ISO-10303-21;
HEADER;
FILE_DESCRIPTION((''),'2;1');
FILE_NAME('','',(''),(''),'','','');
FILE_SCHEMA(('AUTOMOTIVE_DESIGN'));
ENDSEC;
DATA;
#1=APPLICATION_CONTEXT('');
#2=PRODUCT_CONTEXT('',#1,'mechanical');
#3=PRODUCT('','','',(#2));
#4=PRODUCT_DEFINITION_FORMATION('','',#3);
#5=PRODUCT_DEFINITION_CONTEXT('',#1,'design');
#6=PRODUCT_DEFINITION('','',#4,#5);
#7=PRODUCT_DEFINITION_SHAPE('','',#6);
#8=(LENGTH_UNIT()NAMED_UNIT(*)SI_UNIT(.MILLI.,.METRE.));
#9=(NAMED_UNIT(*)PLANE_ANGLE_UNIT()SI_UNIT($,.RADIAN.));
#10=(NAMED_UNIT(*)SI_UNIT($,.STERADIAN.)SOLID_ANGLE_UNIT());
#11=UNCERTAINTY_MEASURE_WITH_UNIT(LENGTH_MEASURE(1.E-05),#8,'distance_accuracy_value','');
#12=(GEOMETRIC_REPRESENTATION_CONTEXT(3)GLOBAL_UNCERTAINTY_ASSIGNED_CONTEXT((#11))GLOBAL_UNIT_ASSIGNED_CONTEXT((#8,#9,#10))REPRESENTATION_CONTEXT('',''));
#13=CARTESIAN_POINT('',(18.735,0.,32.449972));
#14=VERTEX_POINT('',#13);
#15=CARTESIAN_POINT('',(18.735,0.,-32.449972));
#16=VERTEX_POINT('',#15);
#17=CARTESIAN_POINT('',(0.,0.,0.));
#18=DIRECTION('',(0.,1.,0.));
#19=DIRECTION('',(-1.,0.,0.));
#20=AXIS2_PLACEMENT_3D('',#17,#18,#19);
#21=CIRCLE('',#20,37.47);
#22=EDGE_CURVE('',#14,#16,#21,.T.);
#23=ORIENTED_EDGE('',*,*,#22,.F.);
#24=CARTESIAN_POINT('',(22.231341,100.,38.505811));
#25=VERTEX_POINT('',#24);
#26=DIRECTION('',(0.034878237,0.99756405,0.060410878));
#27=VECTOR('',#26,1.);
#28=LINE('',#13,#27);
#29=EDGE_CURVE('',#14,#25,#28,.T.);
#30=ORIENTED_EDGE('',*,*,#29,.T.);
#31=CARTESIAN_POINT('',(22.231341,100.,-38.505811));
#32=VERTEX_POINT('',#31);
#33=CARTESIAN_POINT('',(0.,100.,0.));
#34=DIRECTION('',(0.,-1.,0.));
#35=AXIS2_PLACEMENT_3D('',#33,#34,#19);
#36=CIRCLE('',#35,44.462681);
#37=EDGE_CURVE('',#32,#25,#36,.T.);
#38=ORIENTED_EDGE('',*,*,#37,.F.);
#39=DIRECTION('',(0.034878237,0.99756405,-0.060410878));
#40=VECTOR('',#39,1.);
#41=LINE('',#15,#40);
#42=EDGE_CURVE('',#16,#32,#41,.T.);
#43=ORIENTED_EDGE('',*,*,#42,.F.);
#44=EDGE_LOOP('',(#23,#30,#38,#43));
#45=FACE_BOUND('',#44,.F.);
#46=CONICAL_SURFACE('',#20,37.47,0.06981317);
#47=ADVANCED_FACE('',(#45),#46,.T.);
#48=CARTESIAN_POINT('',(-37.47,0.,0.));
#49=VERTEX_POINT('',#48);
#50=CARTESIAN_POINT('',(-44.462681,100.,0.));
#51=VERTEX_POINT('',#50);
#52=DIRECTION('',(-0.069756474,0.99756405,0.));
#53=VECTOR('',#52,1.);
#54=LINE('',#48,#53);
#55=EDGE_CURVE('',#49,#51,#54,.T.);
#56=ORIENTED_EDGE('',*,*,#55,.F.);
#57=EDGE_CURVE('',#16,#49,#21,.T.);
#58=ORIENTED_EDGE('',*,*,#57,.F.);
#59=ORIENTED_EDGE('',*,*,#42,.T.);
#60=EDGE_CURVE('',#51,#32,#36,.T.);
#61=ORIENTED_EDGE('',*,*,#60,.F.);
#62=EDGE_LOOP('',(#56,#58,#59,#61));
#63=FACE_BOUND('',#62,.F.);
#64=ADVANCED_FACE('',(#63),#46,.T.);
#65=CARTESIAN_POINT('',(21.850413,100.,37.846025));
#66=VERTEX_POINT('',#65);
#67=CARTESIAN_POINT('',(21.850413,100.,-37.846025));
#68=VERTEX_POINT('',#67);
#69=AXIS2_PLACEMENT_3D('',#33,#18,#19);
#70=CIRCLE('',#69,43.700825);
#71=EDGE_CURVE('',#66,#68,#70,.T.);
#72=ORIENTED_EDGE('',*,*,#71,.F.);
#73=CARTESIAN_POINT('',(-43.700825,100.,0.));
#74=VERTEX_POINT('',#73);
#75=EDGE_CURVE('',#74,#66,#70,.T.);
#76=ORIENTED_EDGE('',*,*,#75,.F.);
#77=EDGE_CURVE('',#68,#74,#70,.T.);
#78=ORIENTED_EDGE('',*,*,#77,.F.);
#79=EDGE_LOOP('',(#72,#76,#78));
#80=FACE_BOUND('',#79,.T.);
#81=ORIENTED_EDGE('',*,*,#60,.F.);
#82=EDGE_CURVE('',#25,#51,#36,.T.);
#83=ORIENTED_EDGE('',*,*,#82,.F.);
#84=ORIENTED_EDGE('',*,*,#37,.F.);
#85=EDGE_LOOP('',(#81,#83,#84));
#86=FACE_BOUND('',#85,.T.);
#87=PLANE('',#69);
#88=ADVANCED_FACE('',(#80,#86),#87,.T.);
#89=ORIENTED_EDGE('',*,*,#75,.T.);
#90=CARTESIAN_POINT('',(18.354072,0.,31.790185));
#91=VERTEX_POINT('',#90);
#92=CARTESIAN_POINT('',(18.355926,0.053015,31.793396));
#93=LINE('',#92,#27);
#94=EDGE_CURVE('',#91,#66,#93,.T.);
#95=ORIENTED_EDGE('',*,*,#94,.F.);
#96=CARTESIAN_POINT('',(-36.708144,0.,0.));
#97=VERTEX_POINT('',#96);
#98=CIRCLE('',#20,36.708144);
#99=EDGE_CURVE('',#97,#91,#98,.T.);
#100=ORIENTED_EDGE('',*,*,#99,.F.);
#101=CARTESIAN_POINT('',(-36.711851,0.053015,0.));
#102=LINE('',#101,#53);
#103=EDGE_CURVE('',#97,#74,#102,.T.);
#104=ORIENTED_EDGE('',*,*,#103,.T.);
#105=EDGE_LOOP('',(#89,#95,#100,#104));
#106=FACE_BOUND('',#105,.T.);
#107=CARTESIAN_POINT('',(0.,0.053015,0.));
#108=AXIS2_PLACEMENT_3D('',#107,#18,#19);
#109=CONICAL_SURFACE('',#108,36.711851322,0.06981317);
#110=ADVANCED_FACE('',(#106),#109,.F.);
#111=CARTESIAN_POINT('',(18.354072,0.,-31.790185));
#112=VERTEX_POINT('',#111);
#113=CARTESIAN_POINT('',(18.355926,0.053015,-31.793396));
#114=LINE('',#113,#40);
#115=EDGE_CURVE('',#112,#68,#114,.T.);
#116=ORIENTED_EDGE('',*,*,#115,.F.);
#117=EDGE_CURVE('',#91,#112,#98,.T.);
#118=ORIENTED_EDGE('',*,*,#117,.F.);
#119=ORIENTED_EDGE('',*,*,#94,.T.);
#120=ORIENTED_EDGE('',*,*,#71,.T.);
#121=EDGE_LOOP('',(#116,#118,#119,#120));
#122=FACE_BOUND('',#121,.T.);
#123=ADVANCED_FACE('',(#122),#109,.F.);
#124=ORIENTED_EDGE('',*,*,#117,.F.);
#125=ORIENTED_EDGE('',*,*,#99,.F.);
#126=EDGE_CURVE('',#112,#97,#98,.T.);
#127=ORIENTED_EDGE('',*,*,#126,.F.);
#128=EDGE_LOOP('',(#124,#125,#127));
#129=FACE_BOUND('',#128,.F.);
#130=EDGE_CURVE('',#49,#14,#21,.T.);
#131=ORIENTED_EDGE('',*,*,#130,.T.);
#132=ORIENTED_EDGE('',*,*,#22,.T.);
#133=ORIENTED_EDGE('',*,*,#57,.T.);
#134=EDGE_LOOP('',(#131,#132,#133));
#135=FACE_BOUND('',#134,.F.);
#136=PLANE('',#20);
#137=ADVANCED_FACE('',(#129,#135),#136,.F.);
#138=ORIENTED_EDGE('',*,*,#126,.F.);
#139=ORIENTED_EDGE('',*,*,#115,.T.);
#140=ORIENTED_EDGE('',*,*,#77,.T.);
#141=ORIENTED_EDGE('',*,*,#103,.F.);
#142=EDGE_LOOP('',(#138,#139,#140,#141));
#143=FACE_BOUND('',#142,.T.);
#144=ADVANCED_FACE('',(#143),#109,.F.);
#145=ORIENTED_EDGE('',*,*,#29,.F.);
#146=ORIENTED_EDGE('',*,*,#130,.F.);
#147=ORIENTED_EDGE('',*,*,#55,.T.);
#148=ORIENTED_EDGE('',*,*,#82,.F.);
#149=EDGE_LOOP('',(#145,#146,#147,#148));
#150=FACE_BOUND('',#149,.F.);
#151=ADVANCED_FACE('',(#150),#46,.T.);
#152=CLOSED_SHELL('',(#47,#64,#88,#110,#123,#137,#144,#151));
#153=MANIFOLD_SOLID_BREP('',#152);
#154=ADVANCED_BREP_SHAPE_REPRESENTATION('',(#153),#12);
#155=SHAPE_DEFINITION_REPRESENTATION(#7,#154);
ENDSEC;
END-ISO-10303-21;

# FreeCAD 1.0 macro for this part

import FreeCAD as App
import Part
import Sketcher

V = App.Vector
Q = App.Units.Quantity


def faces_at(feature, points):
    """Names of the faces that lie closest to the given points."""
    faces = feature.Shape.Faces
    near = lambda p: min(range(len(faces)), key=lambda i: faces[i].distToShape(Part.Vertex(*p))[0])
    return sorted({f"Face{near(p) + 1}" for p in points})

doc = App.newDocument("Part")
body = doc.addObject("PartDesign::Body", "Body")

sketch1 = body.newObject("Sketcher::SketchObject", "Sketch")
sketch1.AttachmentSupport = (doc.getObject("XZ_Plane"), [""])
sketch1.MapMode = "FlatFace"
sketch1.addGeometry(Part.Circle(V(0, 0, 0), V(0, 0, 1), 37.47), False)
sketch1.addConstraint([
    Sketcher.Constraint("Coincident", 0, 3, -1, 1),
    Sketcher.Constraint("Diameter", 0, Q("2.9504 in")),
])
pad1 = body.newObject("PartDesign::Pad", "Pad")
pad1.Profile = sketch1
pad1.Length = Q("3.9370079 in")
pad1.Reversed = True
pad1.TaperAngle = 4
doc.recompute()

thickness = body.newObject("PartDesign::Thickness", "Thickness")
thickness.Base = (pad1, faces_at(pad1, [(-11.184, 0, 12.422), (-7.41, 100, -12.835)]))
thickness.Value = 0.76
thickness.Reversed = True
thickness.Join = "Intersection"

doc.recompute()
